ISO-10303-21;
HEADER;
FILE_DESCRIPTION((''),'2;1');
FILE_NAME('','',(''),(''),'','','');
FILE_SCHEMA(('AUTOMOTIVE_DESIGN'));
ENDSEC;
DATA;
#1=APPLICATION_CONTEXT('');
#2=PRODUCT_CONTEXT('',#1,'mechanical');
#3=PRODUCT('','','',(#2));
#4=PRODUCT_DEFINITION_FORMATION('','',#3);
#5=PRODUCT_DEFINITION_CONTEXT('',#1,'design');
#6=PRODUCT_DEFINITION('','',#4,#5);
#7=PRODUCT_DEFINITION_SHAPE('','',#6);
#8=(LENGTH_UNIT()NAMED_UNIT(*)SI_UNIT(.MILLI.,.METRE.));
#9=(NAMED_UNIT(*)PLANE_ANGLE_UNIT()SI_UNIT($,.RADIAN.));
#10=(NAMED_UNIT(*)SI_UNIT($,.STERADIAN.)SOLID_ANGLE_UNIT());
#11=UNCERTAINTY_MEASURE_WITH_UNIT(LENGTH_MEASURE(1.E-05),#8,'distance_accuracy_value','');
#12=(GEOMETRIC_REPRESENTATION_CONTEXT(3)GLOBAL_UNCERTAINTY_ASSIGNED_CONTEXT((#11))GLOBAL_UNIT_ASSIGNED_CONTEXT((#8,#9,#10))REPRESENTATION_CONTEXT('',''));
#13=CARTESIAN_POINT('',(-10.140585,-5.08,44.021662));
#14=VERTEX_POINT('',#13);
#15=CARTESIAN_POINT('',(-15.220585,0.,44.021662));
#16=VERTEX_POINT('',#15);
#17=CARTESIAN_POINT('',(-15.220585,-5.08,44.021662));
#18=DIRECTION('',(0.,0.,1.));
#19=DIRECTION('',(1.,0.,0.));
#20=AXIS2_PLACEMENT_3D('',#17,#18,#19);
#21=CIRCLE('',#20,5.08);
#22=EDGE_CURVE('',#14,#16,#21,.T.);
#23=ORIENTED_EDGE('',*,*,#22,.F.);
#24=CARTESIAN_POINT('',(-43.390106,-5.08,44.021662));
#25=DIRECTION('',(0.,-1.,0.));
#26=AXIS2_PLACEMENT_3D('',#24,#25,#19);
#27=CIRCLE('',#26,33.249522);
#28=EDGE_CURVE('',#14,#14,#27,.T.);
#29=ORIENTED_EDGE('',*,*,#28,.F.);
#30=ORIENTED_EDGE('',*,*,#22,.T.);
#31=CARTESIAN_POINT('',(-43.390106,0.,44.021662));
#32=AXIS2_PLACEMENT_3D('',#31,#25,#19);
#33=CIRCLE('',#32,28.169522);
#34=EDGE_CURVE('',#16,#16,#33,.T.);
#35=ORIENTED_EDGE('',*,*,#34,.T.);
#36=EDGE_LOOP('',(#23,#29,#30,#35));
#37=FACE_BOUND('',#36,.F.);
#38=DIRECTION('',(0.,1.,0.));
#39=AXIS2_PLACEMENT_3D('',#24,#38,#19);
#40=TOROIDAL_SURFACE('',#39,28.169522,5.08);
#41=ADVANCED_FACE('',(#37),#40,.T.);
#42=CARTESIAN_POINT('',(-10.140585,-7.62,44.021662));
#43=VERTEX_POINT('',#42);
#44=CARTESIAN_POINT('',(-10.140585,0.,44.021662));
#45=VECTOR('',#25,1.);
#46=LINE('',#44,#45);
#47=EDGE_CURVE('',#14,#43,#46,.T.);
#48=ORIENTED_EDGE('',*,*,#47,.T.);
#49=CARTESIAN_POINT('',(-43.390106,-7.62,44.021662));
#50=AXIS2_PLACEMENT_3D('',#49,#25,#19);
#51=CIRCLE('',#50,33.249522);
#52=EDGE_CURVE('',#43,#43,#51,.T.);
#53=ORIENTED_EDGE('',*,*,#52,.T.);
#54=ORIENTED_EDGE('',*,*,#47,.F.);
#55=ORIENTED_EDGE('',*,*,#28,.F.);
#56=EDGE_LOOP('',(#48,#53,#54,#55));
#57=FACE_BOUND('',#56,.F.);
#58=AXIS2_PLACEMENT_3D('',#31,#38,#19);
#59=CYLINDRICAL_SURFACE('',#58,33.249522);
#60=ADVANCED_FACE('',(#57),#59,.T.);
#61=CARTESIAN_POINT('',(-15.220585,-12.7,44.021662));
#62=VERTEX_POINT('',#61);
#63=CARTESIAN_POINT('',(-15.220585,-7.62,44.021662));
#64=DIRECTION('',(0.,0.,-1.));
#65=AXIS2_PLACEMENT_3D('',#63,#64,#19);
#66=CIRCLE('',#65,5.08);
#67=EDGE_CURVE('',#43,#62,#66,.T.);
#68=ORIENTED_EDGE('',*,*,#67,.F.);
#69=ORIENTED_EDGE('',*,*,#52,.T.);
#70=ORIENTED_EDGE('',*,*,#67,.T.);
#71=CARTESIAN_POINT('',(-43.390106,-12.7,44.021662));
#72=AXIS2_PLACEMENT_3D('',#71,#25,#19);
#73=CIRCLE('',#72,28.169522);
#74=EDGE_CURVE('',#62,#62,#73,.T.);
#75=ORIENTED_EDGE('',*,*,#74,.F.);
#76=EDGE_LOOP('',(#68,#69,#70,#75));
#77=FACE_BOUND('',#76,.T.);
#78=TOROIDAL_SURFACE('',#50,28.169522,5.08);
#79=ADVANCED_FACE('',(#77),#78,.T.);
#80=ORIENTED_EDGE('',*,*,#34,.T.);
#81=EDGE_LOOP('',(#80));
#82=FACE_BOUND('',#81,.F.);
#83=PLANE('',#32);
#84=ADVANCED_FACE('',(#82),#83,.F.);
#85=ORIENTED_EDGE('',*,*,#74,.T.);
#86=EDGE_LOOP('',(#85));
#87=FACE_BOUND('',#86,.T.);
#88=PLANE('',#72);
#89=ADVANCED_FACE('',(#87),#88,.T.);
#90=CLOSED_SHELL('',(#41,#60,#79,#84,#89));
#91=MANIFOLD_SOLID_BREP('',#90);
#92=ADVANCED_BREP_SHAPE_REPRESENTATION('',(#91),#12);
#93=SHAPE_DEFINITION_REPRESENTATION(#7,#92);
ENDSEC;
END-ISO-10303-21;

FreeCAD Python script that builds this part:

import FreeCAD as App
import Part
import Sketcher
from FreeCAD import Vector


def edges_at(feature, points):
    """Names of the edges that pass closest to the given points."""
    edges = feature.Shape.Edges
    near = lambda p: min(range(len(edges)), key=lambda i: edges[i].distToShape(Part.Vertex(*p))[0])
    return sorted({f"Edge{near(p) + 1}" for p in points})

doc = App.newDocument("Part")
params = doc.addObject("Spreadsheet::Sheet", "Params")
for row, (alias, value) in enumerate([
    ("pad1_length", "0.5 in"),
    ("fillet_radius", "0.2 in"),
    ("pad2_length", "0.5 in"),
    ("fillet2_radius", "0.2 in"),
], start=1):
    params.set(f"A{row}", alias)
    params.set(f"B{row}", "=" + value)
    params.setAlias(f"B{row}", alias)

body = doc.addObject("PartDesign::Body", "Body")

# Sketch on XZ plane
sketch1 = body.newObject("Sketcher::SketchObject", "Sketch")
sketch1.AttachmentSupport = (doc.getObject("XZ_Plane"), [""])
sketch1.MapMode = "FlatFace"
sketch1.addGeometry(Part.Circle(Vector(-139, 33, 0), Vector(0, 0, 1), 19), False)
sketch1.addConstraint(Sketcher.Constraint("Diameter", 0, 38.338428))
sketch1.addConstraint(Sketcher.Constraint("DistanceX", 0, 3, -1, 1, 138.736174))
sketch1.addConstraint(Sketcher.Constraint("DistanceY", -1, 1, 0, 3, 32.793242))
pad1 = body.newObject("PartDesign::Pad", "Pad")
pad1.Profile = sketch1
pad1.setExpression("Length", "Params.pad1_length")
doc.recompute()

fillet = body.newObject("PartDesign::Fillet", "Fillet")
fillet.Base = (pad1, edges_at(pad1, [(-157.905, -12.7, 32.793), (-157.905, 0, 32.793)]))
fillet.setExpression("Radius", "Params.fillet_radius")
body2 = doc.addObject("PartDesign::Body", "Body001")

# Sketch on XZ plane
sketch2 = body2.newObject("Sketcher::SketchObject", "Sketch001")
sketch2.AttachmentSupport = (doc.getObject("XZ_Plane001"), [""])
sketch2.MapMode = "FlatFace"
sketch2.addGeometry(Part.Circle(Vector(-43, 44, 0), Vector(0, 0, 1), 33), False)
sketch2.addConstraint(Sketcher.Constraint("Diameter", 0, 66.499044))
sketch2.addConstraint(Sketcher.Constraint("DistanceX", 0, 3, -1, 1, 43.390106))
sketch2.addConstraint(Sketcher.Constraint("DistanceY", -1, 1, 0, 3, 44.021662))
pad2 = body2.newObject("PartDesign::Pad", "Pad001")
pad2.Profile = sketch2
pad2.setExpression("Length", "Params.pad2_length")
doc.recompute()

fillet2 = body2.newObject("PartDesign::Fillet", "Fillet001")
fillet2.Base = (pad2, edges_at(pad2, [(-76.64, 0, 44.022), (-76.64, -12.7, 44.022)]))
fillet2.setExpression("Radius", "Params.fillet2_radius")
body.Visibility = False

doc.recompute()
